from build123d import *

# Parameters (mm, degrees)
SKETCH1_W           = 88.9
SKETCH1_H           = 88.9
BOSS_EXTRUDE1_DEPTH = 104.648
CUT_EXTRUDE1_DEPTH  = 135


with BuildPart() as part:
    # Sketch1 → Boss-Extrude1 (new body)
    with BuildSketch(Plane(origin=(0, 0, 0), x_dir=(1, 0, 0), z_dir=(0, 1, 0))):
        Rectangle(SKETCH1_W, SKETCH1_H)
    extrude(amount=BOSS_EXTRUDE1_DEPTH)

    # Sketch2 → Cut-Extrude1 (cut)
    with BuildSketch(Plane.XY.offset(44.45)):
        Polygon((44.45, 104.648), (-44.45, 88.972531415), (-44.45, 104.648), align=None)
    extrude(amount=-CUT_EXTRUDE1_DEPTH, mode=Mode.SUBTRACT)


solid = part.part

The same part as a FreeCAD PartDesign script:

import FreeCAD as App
import Part
import Sketcher
Q = App.Units.Quantity


def add_polygon(sketch, points):
    """Adds a closed chain of lines whose ends are joined by coincident constraints."""
    first, n = sketch.GeometryCount, len(points)
    for a, b in zip(points, points[1:] + points[:1]):
        sketch.addGeometry(Part.LineSegment(App.Vector(*a, 0), App.Vector(*b, 0)), False)
    for i in range(n):
        sketch.addConstraint(Sketcher.Constraint("Coincident", first + i, 2, first + (i + 1) % n, 1))

doc = App.newDocument("Part")
body = doc.addObject("PartDesign::Body", "Body")

sketch1 = body.newObject("Sketcher::SketchObject", "Sketch")
sketch1.AttachmentSupport = (doc.getObject("XZ_Plane"), [""])
sketch1.MapMode = "FlatFace"
add_polygon(sketch1, [(-44, -44), (-44, 44), (44, 44), (44, -44)])
sketch1.addConstraint(Sketcher.Constraint("Vertical", 0))
sketch1.addConstraint(Sketcher.Constraint("Horizontal", 1))
sketch1.addConstraint(Sketcher.Constraint("Vertical", 2))
sketch1.addConstraint(Sketcher.Constraint("Horizontal", 3))
sketch1.addConstraint(Sketcher.Constraint("Symmetric", 0, 2, 2, 2, -1, 1))
sketch1.addConstraint(Sketcher.Constraint("Equal", 3, 0))
sketch1.addConstraint(Sketcher.Constraint("DistanceX", 1, 1, 1, 2, Q("3.5 in")))
pad1 = body.newObject("PartDesign::Pad", "Pad")
pad1.Profile = sketch1
pad1.Length = Q("4.12 in")
pad1.Reversed = True

sketch2 = body.newObject("Sketcher::SketchObject", "Sketch001")
sketch2.AttachmentSupport = (doc.getObject("XY_Plane"), [""])
sketch2.MapMode = "FlatFace"
sketch2.AttachmentOffset = App.Placement(App.Vector(0, 0, 1.75 * 25.4), App.Rotation())
add_polygon(sketch2, [(-44, 89), (44, 105), (-44, 105)])
sketch2.addConstraint(Sketcher.Constraint("Horizontal", 1))
sketch2.addConstraint(Sketcher.Constraint("Vertical", 2))
sketch2.addConstraint(Sketcher.Constraint("DistanceX", 1, 2, 1, 1, Q("3.5 in")))
sketch2.addConstraint(Sketcher.Constraint("Angle", 0, Q("10 deg")))
sketch2.addConstraint(Sketcher.Constraint("DistanceX", -1, 1, 0, 2, Q("1.75 in")))
sketch2.addConstraint(Sketcher.Constraint("DistanceY", -1, 1, 0, 2, Q("4.12 in")))
pocket1 = body.newObject("PartDesign::Pocket", "Pocket")
pocket1.Profile = sketch2
pocket1.Length = 135

doc.recompute()
